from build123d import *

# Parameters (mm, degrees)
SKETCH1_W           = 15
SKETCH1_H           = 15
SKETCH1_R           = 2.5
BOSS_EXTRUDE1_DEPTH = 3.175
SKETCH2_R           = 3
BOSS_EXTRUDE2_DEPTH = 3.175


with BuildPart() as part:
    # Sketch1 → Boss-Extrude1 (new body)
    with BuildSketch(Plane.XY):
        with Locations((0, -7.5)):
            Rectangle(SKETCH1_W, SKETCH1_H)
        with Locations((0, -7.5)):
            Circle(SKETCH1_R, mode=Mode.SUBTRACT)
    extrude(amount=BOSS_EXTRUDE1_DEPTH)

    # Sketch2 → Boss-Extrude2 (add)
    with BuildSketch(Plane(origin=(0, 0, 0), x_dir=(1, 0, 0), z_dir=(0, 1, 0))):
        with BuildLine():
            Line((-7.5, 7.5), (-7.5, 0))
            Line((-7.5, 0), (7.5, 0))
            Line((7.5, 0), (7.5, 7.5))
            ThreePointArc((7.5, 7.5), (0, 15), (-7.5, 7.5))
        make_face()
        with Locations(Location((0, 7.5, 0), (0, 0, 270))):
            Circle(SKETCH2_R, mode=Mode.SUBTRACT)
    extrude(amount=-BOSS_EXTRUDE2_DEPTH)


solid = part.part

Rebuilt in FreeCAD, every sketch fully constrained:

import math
import FreeCAD as App
import Part
import Sketcher

doc = App.newDocument("Part")
body = doc.addObject("PartDesign::Body", "Body")

# Sketch on XY plane
sketch1 = doc.addObject("Sketcher::SketchObject", "Sketch")
body.addObject(sketch1)
sketch1.AttachmentSupport = (doc.XY_Plane, [""])
sketch1.MapMode = "FlatFace"
sketch1.addGeometry(Part.LineSegment(App.Vector(-7.5, 0, 0), App.Vector(-7.5, -15, 0)), False)
sketch1.addGeometry(Part.LineSegment(App.Vector(-7.5, -15, 0), App.Vector(7.5, -15, 0)), False)
sketch1.addGeometry(Part.LineSegment(App.Vector(7.5, -15, 0), App.Vector(7.5, 0, 0)), False)
sketch1.addGeometry(Part.LineSegment(App.Vector(7.5, 0, 0), App.Vector(-7.5, 0, 0)), False)
sketch1.addGeometry(Part.Circle(App.Vector(0, -7.5, 0), App.Vector(0, 0, 1), 2.5), False)
sketch1.addConstraint(Sketcher.Constraint("Coincident", 0, 2, 1, 1))
sketch1.addConstraint(Sketcher.Constraint("Coincident", 1, 2, 2, 1))
sketch1.addConstraint(Sketcher.Constraint("Coincident", 2, 2, 3, 1))
sketch1.addConstraint(Sketcher.Constraint("Coincident", 3, 2, 0, 1))
sketch1.addConstraint(Sketcher.Constraint("Vertical", 0))
sketch1.addConstraint(Sketcher.Constraint("Horizontal", 1))
sketch1.addConstraint(Sketcher.Constraint("Vertical", 2))
sketch1.addConstraint(Sketcher.Constraint("Horizontal", 3))
sketch1.addConstraint(Sketcher.Constraint("Symmetric", 2, 2, 3, 2, -1, 1))
sketch1.addConstraint(Sketcher.Constraint("PointOnObject", 4, 3, -2))
sketch1.addConstraint(Sketcher.Constraint("Equal", 3, 0))
sketch1.addConstraint(Sketcher.Constraint("Diameter", 4, 5.0))
sketch1.addConstraint(Sketcher.Constraint("DistanceX", 1, 1, 1, 2, 15.0))
sketch1.addConstraint(Sketcher.Constraint("DistanceY", 4, 3, -1, 1, 7.5))
pad1 = doc.addObject("PartDesign::Pad", "Pad")
body.addObject(pad1)
pad1.Profile = sketch1
pad1.Length = 3.175

# Sketch on XZ plane
sketch2 = doc.addObject("Sketcher::SketchObject", "Sketch001")
body.addObject(sketch2)
sketch2.AttachmentSupport = (doc.XZ_Plane, [""])
sketch2.MapMode = "FlatFace"
sketch2.addGeometry(Part.LineSegment(App.Vector(-7.5, -7.5, 0), App.Vector(-7.5, 0, 0)), False)
sketch2.addGeometry(Part.LineSegment(App.Vector(-7.5, 0, 0), App.Vector(7.5, 0, 0)), False)
sketch2.addGeometry(Part.LineSegment(App.Vector(7.5, 0, 0), App.Vector(7.5, -7.5, 0)), False)
sketch2.addGeometry(Part.ArcOfCircle(Part.Circle(App.Vector(0, -7.5, 0), App.Vector(0, 0, 1), 7.5), math.radians(180), math.radians(360)), False)
sketch2.addGeometry(Part.Circle(App.Vector(0, -7.5, 0), App.Vector(0, 0, 1), 3), False)
sketch2.addConstraint(Sketcher.Constraint("Coincident", 0, 2, 1, 1))
sketch2.addConstraint(Sketcher.Constraint("Coincident", 1, 2, 2, 1))
sketch2.addConstraint(Sketcher.Constraint("Tangent", 2, 2, 3, 2))
sketch2.addConstraint(Sketcher.Constraint("Tangent", 3, 1, 0, 1))
sketch2.addConstraint(Sketcher.Constraint("Vertical", 0))
sketch2.addConstraint(Sketcher.Constraint("Horizontal", 1))
sketch2.addConstraint(Sketcher.Constraint("Vertical", 2))
sketch2.addConstraint(Sketcher.Constraint("Coincident", 4, 3, 3, 3))
sketch2.addConstraint(Sketcher.Constraint("Symmetric", 0, 2, 1, 2, -1, 1))
sketch2.addConstraint(Sketcher.Constraint("Diameter", 4, 6.0))
sketch2.addConstraint(Sketcher.Constraint("Radius", 3, 7.5))
sketch2.addConstraint(Sketcher.Constraint("DistanceY", 0, 1, 0, 2, 7.5))
pad2 = doc.addObject("PartDesign::Pad", "Pad001")
body.addObject(pad2)
pad2.Profile = sketch2
pad2.Length = 3.175

doc.recompute()
